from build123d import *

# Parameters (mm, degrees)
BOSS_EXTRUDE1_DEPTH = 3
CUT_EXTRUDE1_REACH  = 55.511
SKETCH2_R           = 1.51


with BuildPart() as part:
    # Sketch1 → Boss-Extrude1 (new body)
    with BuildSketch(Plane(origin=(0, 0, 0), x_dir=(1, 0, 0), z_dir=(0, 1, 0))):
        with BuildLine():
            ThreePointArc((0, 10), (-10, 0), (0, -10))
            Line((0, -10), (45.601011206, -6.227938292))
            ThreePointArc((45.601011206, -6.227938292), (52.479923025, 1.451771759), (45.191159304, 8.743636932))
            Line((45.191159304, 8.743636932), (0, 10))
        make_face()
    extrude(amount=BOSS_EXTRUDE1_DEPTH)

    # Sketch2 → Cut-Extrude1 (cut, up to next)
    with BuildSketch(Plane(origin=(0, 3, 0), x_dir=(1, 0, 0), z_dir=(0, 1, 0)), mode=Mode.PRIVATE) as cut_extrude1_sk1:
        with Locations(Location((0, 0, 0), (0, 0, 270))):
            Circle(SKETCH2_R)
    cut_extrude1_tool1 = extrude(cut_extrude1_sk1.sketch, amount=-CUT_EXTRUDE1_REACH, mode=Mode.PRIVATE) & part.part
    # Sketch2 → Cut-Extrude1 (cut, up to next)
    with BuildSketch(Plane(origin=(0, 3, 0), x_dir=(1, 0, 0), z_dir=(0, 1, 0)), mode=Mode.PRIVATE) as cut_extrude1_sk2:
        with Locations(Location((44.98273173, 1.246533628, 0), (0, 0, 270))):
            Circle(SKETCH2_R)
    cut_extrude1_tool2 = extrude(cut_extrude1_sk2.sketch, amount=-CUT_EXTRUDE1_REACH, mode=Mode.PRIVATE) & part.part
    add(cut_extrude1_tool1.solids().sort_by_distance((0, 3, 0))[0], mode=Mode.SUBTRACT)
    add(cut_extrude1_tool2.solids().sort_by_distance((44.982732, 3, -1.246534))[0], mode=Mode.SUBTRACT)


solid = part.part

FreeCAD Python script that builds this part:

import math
import FreeCAD as App
import Part
import Sketcher
from FreeCAD import Vector
Q = App.Units.Quantity

doc = App.newDocument("Part")
body = doc.addObject("PartDesign::Body", "Body")

# Sketch on XZ plane
sketch1 = doc.addObject("Sketcher::SketchObject", "Sketch")
body.addObject(sketch1)
sketch1.AttachmentSupport = (doc.XZ_Plane, [""])
sketch1.MapMode = "FlatFace"
sketch1.addGeometry(Part.ArcOfCircle(Part.Circle(Vector(0, 0, 0), Vector(0, 0, 1), 10), math.radians(90), math.radians(270)), False)
sketch1.addGeometry(Part.LineSegment(Vector(0, 10, 0), Vector(46, 6, 0)), False)
sketch1.addGeometry(Part.ArcOfCircle(Part.Circle(Vector(45, -1, 0), Vector(0, 0, 1), 8), math.radians(-88), math.radians(85)), False)
sketch1.addGeometry(Part.LineSegment(Vector(45, -9, 0), Vector(0, -10, 0)), False)
sketch1.addConstraint(Sketcher.Constraint("Coincident", 0, 1, 1, 1))
sketch1.addConstraint(Sketcher.Constraint("Tangent", 1, 2, 2, 2))
sketch1.addConstraint(Sketcher.Constraint("Tangent", 2, 1, 3, 1))
sketch1.addConstraint(Sketcher.Constraint("Coincident", 3, 2, 0, 2))
sketch1.addConstraint(Sketcher.Constraint("Coincident", 0, 3, -1, 1))
sketch1.addConstraint(Sketcher.Constraint("PointOnObject", 0, 1, -2))
sketch1.addConstraint(Sketcher.Constraint("PointOnObject", 3, 2, -2))
sketch1.addConstraint(Sketcher.Constraint("Radius", 0, Q("10 mm")))
sketch1.addConstraint(Sketcher.Constraint("Radius", 2, Q("7.5 mm")))
sketch1.addConstraint(Sketcher.Constraint("Distance", 3, Q("45.20862 mm")))
sketch1.addConstraint(Sketcher.Constraint("DistanceX", -1, 1, 2, 3, Q("44.982732 mm")))
pad1 = doc.addObject("PartDesign::Pad", "Pad")
body.addObject(pad1)
pad1.Profile = sketch1
pad1.Length = 3
pad1.Reversed = True

# Sketch on XZ plane
sketch2 = doc.addObject("Sketcher::SketchObject", "Sketch001")
body.addObject(sketch2)
sketch2.AttachmentSupport = (doc.XZ_Plane, [""])
sketch2.MapMode = "FlatFace"
sketch2.AttachmentOffset = App.Placement(Vector(0, 0, -3), App.Rotation())
sketch2.addGeometry(Part.Circle(Vector(0, 0, 0), Vector(0, 0, 1), 1.5), False)
sketch2.addConstraint(Sketcher.Constraint("Coincident", 0, 3, -1, 1))
sketch2.addConstraint(Sketcher.Constraint("Diameter", 0, Q("3.02 mm")))
pocket1 = doc.addObject("PartDesign::Pocket", "Pocket")
body.addObject(pocket1)
pocket1.Profile = sketch2
pocket1.Type = "UpToFirst"
pocket1.Reversed = True

# Sketch on XZ plane
sketch3 = doc.addObject("Sketcher::SketchObject", "Sketch002")
body.addObject(sketch3)
sketch3.AttachmentSupport = (doc.XZ_Plane, [""])
sketch3.MapMode = "FlatFace"
sketch3.AttachmentOffset = App.Placement(Vector(0, 0, -3), App.Rotation())
sketch3.addGeometry(Part.Circle(Vector(45, -1.2, 0), Vector(0, 0, 1), 1.5), False)
sketch3.addConstraint(Sketcher.Constraint("Diameter", 0, Q("3.02 mm")))
sketch3.addConstraint(Sketcher.Constraint("DistanceX", -1, 1, 0, 3, Q("44.982732 mm")))
sketch3.addConstraint(Sketcher.Constraint("DistanceY", 0, 3, -1, 1, Q("1.246534 mm")))
pocket2 = doc.addObject("PartDesign::Pocket", "Pocket001")
body.addObject(pocket2)
pocket2.Profile = sketch3
pocket2.Type = "UpToFirst"
pocket2.Reversed = True

doc.recompute()
